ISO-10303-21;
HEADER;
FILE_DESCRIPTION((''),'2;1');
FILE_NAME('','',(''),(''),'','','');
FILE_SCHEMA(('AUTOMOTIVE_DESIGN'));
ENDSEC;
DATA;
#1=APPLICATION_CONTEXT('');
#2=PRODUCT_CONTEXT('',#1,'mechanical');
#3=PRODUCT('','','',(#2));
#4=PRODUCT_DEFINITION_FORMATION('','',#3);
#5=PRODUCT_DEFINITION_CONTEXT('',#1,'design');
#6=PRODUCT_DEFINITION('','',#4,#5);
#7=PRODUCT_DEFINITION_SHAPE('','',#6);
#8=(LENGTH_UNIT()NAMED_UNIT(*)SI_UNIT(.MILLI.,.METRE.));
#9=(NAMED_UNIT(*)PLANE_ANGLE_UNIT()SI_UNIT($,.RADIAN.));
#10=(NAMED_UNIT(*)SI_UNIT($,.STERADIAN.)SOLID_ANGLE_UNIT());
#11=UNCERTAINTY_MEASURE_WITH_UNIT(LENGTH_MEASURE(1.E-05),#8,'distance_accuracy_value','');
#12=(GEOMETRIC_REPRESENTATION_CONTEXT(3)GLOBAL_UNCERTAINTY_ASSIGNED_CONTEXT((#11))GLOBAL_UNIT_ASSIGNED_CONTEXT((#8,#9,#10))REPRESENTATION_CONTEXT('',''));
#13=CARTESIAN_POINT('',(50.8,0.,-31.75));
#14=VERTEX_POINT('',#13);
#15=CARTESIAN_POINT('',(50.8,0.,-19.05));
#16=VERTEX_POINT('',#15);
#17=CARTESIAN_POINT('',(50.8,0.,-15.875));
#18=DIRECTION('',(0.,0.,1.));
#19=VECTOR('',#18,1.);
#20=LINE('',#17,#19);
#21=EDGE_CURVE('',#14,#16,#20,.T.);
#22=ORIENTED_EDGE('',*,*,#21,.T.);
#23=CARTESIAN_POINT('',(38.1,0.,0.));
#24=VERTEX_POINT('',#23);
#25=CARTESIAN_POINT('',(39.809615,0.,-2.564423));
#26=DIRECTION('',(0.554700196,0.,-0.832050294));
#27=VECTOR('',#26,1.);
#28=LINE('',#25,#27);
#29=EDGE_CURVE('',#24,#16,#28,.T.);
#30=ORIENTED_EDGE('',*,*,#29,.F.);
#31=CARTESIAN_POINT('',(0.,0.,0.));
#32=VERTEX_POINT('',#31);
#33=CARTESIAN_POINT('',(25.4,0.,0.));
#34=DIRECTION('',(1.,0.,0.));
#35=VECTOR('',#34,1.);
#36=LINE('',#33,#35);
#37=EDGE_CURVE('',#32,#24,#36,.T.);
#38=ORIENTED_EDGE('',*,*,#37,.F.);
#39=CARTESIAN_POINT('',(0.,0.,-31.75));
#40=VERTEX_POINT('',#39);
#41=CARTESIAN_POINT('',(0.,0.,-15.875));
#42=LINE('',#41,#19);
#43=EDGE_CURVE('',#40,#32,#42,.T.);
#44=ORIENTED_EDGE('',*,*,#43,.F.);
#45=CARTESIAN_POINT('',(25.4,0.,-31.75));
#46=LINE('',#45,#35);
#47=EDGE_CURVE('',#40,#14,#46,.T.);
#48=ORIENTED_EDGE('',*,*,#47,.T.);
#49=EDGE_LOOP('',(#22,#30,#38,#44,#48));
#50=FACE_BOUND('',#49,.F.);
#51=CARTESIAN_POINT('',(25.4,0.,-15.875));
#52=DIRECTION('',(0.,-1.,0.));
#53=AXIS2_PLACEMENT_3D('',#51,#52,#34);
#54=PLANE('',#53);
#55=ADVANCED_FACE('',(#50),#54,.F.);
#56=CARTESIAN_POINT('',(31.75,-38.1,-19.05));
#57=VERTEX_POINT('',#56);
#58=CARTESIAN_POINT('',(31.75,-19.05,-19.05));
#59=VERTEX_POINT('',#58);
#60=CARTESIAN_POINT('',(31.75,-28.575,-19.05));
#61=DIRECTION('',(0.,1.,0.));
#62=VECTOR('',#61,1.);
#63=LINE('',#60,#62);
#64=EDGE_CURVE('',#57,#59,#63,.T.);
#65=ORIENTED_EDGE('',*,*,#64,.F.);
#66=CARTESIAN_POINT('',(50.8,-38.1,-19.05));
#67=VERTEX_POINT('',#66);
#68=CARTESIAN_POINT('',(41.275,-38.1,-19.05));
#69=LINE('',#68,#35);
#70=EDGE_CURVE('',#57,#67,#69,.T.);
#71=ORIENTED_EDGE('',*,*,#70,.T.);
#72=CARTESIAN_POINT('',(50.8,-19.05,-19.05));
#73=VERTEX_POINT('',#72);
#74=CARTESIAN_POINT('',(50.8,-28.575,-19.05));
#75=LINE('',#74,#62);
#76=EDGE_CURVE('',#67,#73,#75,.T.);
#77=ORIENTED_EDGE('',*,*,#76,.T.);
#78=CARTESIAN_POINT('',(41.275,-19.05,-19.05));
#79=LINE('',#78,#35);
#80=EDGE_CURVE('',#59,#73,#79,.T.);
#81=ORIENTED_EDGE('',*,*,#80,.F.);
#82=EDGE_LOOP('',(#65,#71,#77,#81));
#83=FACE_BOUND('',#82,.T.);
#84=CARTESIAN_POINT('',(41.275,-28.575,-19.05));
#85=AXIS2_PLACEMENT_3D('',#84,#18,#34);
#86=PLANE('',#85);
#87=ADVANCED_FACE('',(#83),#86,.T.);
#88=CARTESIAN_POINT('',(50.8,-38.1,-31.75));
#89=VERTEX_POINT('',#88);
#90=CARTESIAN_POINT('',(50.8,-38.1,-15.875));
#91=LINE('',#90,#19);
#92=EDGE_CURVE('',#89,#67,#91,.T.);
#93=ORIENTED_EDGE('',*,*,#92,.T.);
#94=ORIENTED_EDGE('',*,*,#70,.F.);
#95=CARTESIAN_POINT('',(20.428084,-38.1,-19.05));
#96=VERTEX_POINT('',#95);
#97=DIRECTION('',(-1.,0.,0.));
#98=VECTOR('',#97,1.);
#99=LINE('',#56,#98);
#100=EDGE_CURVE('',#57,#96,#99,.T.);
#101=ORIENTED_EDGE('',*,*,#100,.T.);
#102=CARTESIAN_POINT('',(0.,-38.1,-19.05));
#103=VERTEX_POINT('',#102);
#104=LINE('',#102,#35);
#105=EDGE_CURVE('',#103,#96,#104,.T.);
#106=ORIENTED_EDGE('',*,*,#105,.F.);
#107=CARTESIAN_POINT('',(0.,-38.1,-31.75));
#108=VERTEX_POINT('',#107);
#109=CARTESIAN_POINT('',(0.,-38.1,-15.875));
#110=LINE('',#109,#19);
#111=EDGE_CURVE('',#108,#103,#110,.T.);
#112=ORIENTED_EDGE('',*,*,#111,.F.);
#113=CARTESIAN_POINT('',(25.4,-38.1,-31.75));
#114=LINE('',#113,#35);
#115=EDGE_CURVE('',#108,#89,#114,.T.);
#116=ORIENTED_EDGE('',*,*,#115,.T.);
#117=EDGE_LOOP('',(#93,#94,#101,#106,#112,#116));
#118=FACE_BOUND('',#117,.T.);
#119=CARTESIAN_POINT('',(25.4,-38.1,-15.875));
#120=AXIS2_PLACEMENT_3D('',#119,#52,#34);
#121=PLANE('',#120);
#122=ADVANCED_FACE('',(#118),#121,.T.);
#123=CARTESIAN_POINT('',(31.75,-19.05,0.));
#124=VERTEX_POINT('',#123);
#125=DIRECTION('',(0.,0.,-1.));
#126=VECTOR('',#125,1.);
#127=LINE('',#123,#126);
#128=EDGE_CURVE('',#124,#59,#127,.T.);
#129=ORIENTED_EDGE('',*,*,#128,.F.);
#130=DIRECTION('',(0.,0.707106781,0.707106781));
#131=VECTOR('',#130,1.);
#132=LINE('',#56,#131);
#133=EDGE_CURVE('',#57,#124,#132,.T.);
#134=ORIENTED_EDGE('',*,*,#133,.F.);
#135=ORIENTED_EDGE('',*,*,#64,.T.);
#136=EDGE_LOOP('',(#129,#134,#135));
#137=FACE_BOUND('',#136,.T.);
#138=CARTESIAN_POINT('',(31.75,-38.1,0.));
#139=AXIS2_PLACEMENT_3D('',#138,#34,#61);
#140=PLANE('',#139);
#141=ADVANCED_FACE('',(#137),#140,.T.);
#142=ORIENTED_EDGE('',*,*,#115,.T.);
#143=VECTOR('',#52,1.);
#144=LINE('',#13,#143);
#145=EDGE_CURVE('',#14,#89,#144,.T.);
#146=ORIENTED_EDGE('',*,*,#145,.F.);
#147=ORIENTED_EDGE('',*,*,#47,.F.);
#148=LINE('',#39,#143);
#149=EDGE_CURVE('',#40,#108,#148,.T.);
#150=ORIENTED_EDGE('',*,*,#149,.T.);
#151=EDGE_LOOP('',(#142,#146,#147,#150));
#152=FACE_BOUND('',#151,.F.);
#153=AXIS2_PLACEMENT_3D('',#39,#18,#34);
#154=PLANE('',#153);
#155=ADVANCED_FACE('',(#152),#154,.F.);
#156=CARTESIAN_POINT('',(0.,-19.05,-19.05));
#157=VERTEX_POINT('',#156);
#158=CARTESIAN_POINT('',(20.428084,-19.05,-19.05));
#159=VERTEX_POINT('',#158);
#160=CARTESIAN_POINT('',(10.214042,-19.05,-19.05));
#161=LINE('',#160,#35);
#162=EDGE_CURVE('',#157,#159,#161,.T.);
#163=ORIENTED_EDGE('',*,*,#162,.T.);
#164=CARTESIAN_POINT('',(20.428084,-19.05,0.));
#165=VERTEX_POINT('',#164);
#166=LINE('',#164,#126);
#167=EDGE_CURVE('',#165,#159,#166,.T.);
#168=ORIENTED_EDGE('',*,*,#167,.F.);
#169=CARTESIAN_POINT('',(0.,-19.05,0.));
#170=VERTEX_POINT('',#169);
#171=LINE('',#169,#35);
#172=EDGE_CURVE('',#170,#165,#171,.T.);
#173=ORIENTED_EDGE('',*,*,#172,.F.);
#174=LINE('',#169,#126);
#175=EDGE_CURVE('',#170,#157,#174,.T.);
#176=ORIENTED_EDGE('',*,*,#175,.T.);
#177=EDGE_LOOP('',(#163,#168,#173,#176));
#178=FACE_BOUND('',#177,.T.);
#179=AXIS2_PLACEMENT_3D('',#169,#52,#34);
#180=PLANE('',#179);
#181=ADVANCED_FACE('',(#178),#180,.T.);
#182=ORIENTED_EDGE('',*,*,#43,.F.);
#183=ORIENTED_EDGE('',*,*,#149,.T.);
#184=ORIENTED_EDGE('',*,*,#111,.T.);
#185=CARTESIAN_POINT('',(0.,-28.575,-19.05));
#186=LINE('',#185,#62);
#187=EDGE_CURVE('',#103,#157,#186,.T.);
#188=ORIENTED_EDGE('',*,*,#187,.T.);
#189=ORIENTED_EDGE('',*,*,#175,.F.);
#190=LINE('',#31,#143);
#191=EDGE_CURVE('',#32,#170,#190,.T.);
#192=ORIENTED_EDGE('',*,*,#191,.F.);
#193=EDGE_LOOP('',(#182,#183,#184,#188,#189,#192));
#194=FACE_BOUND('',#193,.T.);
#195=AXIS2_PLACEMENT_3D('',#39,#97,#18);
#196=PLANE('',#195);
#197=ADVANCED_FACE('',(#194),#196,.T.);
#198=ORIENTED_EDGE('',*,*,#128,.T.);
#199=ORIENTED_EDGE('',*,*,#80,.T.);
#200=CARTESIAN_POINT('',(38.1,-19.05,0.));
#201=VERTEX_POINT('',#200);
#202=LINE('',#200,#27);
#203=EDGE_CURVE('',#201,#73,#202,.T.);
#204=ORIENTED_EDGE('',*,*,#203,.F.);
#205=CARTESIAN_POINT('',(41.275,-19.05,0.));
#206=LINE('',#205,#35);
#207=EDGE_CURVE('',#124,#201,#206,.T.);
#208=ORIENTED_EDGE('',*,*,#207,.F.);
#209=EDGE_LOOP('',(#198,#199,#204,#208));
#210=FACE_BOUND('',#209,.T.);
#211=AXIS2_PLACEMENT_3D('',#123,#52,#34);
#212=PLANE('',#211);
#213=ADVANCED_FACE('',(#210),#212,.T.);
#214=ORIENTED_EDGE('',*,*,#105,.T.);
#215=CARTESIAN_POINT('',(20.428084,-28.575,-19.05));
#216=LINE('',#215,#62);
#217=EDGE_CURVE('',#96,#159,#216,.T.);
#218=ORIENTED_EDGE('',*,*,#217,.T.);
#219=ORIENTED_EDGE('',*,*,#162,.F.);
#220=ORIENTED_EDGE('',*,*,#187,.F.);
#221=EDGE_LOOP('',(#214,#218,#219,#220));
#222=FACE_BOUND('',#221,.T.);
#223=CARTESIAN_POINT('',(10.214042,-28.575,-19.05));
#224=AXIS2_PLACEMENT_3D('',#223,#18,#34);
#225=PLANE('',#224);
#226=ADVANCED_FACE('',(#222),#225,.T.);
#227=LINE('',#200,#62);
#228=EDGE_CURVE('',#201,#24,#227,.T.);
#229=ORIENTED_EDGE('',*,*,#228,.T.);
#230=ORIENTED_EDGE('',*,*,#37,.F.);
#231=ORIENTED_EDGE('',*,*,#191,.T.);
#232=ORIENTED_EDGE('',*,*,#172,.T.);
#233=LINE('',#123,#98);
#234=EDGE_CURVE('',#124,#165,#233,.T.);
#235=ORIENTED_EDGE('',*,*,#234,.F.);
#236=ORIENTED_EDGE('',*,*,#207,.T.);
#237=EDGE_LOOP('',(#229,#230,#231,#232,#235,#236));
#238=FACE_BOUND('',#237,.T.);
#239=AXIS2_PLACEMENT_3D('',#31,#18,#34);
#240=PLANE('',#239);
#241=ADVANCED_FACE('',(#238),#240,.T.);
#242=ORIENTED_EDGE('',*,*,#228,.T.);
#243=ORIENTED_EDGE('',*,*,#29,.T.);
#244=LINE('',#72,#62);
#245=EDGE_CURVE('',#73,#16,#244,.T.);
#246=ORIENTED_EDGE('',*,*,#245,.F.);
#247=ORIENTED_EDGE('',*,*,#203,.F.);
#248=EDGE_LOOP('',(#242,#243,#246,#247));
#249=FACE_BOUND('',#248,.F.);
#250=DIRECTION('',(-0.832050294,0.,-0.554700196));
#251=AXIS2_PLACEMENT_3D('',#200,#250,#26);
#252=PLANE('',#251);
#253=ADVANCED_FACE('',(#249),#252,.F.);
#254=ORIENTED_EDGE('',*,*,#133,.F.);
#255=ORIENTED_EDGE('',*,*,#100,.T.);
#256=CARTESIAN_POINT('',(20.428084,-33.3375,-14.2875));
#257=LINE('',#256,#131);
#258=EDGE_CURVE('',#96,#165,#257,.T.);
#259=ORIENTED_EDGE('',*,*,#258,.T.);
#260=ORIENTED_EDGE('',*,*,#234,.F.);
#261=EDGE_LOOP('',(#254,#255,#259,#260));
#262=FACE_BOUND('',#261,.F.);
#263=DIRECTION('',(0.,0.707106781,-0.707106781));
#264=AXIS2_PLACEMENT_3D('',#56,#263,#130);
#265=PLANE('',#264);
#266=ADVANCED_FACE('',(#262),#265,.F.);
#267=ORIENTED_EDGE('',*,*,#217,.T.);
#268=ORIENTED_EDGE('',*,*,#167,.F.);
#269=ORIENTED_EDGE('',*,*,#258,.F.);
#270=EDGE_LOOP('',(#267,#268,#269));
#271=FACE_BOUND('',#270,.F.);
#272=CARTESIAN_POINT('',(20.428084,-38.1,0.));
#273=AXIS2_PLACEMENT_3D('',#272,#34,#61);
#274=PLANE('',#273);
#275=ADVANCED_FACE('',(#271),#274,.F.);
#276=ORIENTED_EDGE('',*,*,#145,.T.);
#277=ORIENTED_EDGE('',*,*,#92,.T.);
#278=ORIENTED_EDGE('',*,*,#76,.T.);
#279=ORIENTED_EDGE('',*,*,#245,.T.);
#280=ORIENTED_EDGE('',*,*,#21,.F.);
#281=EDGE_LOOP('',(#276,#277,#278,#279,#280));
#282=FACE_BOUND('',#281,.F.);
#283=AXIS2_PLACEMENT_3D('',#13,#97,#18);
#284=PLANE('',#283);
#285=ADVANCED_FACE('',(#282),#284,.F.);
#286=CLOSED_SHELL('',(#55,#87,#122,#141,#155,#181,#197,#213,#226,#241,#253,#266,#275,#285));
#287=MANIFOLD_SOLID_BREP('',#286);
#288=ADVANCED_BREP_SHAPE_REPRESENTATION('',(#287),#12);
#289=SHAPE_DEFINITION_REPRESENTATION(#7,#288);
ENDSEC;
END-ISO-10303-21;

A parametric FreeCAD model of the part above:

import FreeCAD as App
import Part
import Sketcher

V = App.Vector
Q = App.Units.Quantity

doc = App.newDocument("Part")
body = doc.addObject("PartDesign::Body", "Body")

# Sketch on XZ plane
sketch1 = body.newObject("Sketcher::SketchObject", "Sketch")
sketch1.AttachmentSupport = (doc.getObject("XZ_Plane"), [""])
sketch1.MapMode = "FlatFace"
sketch1.addGeometry([
    Part.LineSegment(V(0, 0, 0), V(0, -32, 0)),
    Part.LineSegment(V(0, -32, 0), V(51, -32, 0)),
    Part.LineSegment(V(51, -32, 0), V(51, 0, 0)),
    Part.LineSegment(V(51, 0, 0), V(0, 0, 0)),
], False)
sketch1.addConstraint([
    Sketcher.Constraint("Coincident", 0, 2, 1, 1),
    Sketcher.Constraint("Coincident", 1, 2, 2, 1),
    Sketcher.Constraint("Coincident", 2, 2, 3, 1),
    Sketcher.Constraint("Coincident", 3, 2, 0, 1),
    Sketcher.Constraint("Vertical", 0),
    Sketcher.Constraint("Horizontal", 1),
    Sketcher.Constraint("Vertical", 2),
    Sketcher.Constraint("Horizontal", 3),
    Sketcher.Constraint("Coincident", 3, 2, -1, 1),
    Sketcher.Constraint("DistanceX", 1, 1, 1, 2, Q("2 in")),
    Sketcher.Constraint("DistanceY", 0, 2, 0, 1, Q("1.25 in")),
])
pad1 = body.newObject("PartDesign::Pad", "Pad")
pad1.Profile = sketch1
pad1.Length = Q("1.5 in")

# Sketch on XY plane
sketch2 = body.newObject("Sketcher::SketchObject", "Sketch001")
sketch2.AttachmentSupport = (doc.getObject("XY_Plane"), [""])
sketch2.MapMode = "FlatFace"
sketch2.addGeometry([
    Part.LineSegment(V(32, -19, 0), V(32, -38, 0)),
    Part.LineSegment(V(32, -38, 0), V(51, -38, 0)),
    Part.LineSegment(V(51, -38, 0), V(51, -19, 0)),
    Part.LineSegment(V(51, -19, 0), V(32, -19, 0)),
], False)
sketch2.addConstraint([
    Sketcher.Constraint("Coincident", 0, 2, 1, 1),
    Sketcher.Constraint("Coincident", 1, 2, 2, 1),
    Sketcher.Constraint("Coincident", 2, 2, 3, 1),
    Sketcher.Constraint("Coincident", 3, 2, 0, 1),
    Sketcher.Constraint("Vertical", 0),
    Sketcher.Constraint("Horizontal", 1),
    Sketcher.Constraint("Vertical", 2),
    Sketcher.Constraint("Horizontal", 3),
    Sketcher.Constraint("Equal", 3, 0),
    Sketcher.Constraint("DistanceX", -1, 1, 1, 2, Q("2 in")),
    Sketcher.Constraint("DistanceX", 1, 1, 1, 2, Q("0.75 in")),
    Sketcher.Constraint("DistanceY", 0, 2, -1, 1, Q("1.5 in")),
])
pocket1 = body.newObject("PartDesign::Pocket", "Pocket")
pocket1.Profile = sketch2
pocket1.Length = Q("0.75 in")

# Sketch on XY plane
sketch3 = body.newObject("Sketcher::SketchObject", "Sketch002")
sketch3.AttachmentSupport = (doc.getObject("XY_Plane"), [""])
sketch3.MapMode = "FlatFace"
sketch3.addGeometry([
    Part.LineSegment(V(0, -19, 0), V(0, -38, 0)),
    Part.LineSegment(V(0, -38, 0), V(20, -38, 0)),
    Part.LineSegment(V(20, -38, 0), V(20, -19, 0)),
    Part.LineSegment(V(20, -19, 0), V(0, -19, 0)),
], False)
sketch3.addConstraint([
    Sketcher.Constraint("Coincident", 0, 2, 1, 1),
    Sketcher.Constraint("Coincident", 1, 2, 2, 1),
    Sketcher.Constraint("Coincident", 2, 2, 3, 1),
    Sketcher.Constraint("Coincident", 3, 2, 0, 1),
    Sketcher.Constraint("Vertical", 0),
    Sketcher.Constraint("Horizontal", 1),
    Sketcher.Constraint("Vertical", 2),
    Sketcher.Constraint("Horizontal", 3),
    Sketcher.Constraint("PointOnObject", 0, 2, -2),
    Sketcher.Constraint("DistanceY", 0, 2, 0, 1, Q("0.75 in")),
    Sketcher.Constraint("DistanceY", 0, 2, -1, 1, Q("1.5 in")),
    Sketcher.Constraint("DistanceX", 1, 1, 1, 2, 20.428084),
])
pocket2 = body.newObject("PartDesign::Pocket", "Pocket001")
pocket2.Profile = sketch3
pocket2.Length = Q("0.75 in")

# Sketch on YZ plane
sketch4 = body.newObject("Sketcher::SketchObject", "Sketch003")
sketch4.AttachmentSupport = (doc.getObject("YZ_Plane"), [""])
sketch4.MapMode = "FlatFace"
sketch4.AttachmentOffset = App.Placement(V(0, 0, 1.25 * 25.4), App.Rotation())
sketch4.addGeometry([
    Part.LineSegment(V(-38, -19, 0), V(-19, 0, 0)),
    Part.LineSegment(V(-19, 0, 0), V(-38, 0, 0)),
    Part.LineSegment(V(-38, 0, 0), V(-38, -19, 0)),
], False)
sketch4.addConstraint([
    Sketcher.Constraint("Coincident", 0, 2, 1, 1),
    Sketcher.Constraint("Coincident", 1, 2, 2, 1),
    Sketcher.Constraint("Coincident", 2, 2, 0, 1),
    Sketcher.Constraint("Horizontal", 1),
    Sketcher.Constraint("Vertical", 2),
    Sketcher.Constraint("PointOnObject", 0, 2, -1),
    Sketcher.Constraint("Equal", 1, 2),
    Sketcher.Constraint("DistanceX", 1, 2, 1, 1, Q("0.75 in")),
    Sketcher.Constraint("DistanceX", 1, 2, -1, 1, Q("1.5 in")),
])
pocket3 = body.newObject("PartDesign::Pocket", "Pocket002")
pocket3.Profile = sketch4
pocket3.Length = Q("1 in")

# Sketch on XZ plane
sketch5 = body.newObject("Sketcher::SketchObject", "Sketch004")
sketch5.AttachmentSupport = (doc.getObject("XZ_Plane"), [""])
sketch5.MapMode = "FlatFace"
sketch5.AttachmentOffset = App.Placement(V(0, 0, 0.75 * 25.4), App.Rotation())
sketch5.addGeometry([
    Part.LineSegment(V(51, 0, 0), V(38, 0, 0)),
    Part.LineSegment(V(38, 0, 0), V(51, -19, 0)),
    Part.LineSegment(V(51, -19, 0), V(51, 0, 0)),
], False)
sketch5.addConstraint([
    Sketcher.Constraint("Coincident", 0, 2, 1, 1),
    Sketcher.Constraint("Coincident", 1, 2, 2, 1),
    Sketcher.Constraint("Coincident", 2, 2, 0, 1),
    Sketcher.Constraint("Horizontal", 0),
    Sketcher.Constraint("Vertical", 2),
    Sketcher.Constraint("PointOnObject", 0, 2, -1),
    Sketcher.Constraint("DistanceX", 0, 2, 0, 1, Q("0.5 in")),
    Sketcher.Constraint("DistanceX", -1, 1, 1, 2, Q("2 in")),
    Sketcher.Constraint("DistanceY", 2, 1, 2, 2, Q("0.75 in")),
])
pocket4 = body.newObject("PartDesign::Pocket", "Pocket003")
pocket4.Profile = sketch5
pocket4.Length = Q("1 in")

doc.recompute()
